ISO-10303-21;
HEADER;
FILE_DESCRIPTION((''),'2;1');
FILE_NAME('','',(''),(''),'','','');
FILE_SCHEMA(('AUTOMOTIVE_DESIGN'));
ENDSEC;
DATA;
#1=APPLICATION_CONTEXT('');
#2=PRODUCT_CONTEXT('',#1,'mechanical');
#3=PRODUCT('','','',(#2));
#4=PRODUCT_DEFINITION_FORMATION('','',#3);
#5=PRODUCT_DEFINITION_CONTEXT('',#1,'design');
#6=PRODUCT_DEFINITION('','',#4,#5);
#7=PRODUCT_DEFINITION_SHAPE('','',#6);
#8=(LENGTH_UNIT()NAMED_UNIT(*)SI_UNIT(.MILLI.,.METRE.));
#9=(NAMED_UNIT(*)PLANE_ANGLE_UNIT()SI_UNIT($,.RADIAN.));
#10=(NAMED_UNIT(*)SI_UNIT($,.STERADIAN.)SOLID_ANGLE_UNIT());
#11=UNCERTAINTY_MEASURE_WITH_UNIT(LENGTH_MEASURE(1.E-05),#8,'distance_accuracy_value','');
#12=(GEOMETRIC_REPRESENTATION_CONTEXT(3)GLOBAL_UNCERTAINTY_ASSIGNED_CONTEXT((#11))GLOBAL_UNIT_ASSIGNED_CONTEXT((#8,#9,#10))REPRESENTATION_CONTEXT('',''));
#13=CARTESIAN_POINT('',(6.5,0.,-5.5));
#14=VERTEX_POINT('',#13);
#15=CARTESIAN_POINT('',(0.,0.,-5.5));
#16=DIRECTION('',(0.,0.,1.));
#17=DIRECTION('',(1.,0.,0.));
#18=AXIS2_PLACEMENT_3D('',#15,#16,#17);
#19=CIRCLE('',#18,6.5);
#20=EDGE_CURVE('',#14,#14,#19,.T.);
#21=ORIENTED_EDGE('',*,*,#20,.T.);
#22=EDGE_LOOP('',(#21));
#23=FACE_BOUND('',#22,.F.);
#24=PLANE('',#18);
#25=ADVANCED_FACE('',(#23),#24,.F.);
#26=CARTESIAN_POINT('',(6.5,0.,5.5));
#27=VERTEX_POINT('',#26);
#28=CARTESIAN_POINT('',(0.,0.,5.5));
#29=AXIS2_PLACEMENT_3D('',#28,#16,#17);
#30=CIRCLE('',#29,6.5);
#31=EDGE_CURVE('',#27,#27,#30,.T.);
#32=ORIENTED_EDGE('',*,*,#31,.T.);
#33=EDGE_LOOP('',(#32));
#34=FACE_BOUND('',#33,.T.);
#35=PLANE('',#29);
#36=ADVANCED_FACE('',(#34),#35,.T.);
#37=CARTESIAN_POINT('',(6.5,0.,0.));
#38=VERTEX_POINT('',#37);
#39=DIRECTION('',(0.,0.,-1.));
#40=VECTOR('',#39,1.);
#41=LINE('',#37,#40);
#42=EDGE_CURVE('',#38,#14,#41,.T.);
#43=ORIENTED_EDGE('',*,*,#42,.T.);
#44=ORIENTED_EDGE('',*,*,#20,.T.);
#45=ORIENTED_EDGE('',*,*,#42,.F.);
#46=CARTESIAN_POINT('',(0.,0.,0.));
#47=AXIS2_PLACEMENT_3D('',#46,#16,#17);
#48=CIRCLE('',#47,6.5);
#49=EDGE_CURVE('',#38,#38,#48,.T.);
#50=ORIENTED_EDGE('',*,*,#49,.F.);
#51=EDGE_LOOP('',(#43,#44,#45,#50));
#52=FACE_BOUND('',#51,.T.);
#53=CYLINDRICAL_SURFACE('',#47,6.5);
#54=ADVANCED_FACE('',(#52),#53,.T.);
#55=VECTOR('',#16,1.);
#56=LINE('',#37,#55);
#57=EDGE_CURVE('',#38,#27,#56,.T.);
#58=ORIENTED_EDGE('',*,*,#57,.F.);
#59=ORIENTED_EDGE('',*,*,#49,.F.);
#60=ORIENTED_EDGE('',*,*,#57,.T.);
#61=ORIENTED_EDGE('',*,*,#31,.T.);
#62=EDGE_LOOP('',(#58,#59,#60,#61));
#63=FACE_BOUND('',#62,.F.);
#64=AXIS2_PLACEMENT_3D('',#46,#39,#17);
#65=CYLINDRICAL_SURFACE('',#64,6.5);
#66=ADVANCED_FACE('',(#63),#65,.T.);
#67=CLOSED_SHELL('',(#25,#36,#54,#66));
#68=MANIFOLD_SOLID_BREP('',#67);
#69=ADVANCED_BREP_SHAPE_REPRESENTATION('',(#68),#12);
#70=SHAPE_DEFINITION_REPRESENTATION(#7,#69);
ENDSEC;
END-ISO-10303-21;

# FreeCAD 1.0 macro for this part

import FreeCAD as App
import Part
import Sketcher
from FreeCAD import Vector

doc = App.newDocument("Part")
body = doc.addObject("PartDesign::Body", "Body")

sketch1 = doc.addObject("Sketcher::SketchObject", "Sketch")
body.addObject(sketch1)
sketch1.AttachmentSupport = (doc.XY_Plane, [""])
sketch1.MapMode = "FlatFace"
sketch1.addGeometry(Part.Circle(Vector(0, 0, 0), Vector(0, 0, 1), 6), False)
sketch1.addConstraint([
    Sketcher.Constraint("Coincident", 0, 3, -1, 1),
    Sketcher.Constraint("Diameter", 0, 13.0),
])
pad1 = doc.addObject("PartDesign::Pad", "Pad")
body.addObject(pad1)
pad1.Profile = sketch1
pad1.Length = 11
pad1.Midplane = True

doc.recompute()
